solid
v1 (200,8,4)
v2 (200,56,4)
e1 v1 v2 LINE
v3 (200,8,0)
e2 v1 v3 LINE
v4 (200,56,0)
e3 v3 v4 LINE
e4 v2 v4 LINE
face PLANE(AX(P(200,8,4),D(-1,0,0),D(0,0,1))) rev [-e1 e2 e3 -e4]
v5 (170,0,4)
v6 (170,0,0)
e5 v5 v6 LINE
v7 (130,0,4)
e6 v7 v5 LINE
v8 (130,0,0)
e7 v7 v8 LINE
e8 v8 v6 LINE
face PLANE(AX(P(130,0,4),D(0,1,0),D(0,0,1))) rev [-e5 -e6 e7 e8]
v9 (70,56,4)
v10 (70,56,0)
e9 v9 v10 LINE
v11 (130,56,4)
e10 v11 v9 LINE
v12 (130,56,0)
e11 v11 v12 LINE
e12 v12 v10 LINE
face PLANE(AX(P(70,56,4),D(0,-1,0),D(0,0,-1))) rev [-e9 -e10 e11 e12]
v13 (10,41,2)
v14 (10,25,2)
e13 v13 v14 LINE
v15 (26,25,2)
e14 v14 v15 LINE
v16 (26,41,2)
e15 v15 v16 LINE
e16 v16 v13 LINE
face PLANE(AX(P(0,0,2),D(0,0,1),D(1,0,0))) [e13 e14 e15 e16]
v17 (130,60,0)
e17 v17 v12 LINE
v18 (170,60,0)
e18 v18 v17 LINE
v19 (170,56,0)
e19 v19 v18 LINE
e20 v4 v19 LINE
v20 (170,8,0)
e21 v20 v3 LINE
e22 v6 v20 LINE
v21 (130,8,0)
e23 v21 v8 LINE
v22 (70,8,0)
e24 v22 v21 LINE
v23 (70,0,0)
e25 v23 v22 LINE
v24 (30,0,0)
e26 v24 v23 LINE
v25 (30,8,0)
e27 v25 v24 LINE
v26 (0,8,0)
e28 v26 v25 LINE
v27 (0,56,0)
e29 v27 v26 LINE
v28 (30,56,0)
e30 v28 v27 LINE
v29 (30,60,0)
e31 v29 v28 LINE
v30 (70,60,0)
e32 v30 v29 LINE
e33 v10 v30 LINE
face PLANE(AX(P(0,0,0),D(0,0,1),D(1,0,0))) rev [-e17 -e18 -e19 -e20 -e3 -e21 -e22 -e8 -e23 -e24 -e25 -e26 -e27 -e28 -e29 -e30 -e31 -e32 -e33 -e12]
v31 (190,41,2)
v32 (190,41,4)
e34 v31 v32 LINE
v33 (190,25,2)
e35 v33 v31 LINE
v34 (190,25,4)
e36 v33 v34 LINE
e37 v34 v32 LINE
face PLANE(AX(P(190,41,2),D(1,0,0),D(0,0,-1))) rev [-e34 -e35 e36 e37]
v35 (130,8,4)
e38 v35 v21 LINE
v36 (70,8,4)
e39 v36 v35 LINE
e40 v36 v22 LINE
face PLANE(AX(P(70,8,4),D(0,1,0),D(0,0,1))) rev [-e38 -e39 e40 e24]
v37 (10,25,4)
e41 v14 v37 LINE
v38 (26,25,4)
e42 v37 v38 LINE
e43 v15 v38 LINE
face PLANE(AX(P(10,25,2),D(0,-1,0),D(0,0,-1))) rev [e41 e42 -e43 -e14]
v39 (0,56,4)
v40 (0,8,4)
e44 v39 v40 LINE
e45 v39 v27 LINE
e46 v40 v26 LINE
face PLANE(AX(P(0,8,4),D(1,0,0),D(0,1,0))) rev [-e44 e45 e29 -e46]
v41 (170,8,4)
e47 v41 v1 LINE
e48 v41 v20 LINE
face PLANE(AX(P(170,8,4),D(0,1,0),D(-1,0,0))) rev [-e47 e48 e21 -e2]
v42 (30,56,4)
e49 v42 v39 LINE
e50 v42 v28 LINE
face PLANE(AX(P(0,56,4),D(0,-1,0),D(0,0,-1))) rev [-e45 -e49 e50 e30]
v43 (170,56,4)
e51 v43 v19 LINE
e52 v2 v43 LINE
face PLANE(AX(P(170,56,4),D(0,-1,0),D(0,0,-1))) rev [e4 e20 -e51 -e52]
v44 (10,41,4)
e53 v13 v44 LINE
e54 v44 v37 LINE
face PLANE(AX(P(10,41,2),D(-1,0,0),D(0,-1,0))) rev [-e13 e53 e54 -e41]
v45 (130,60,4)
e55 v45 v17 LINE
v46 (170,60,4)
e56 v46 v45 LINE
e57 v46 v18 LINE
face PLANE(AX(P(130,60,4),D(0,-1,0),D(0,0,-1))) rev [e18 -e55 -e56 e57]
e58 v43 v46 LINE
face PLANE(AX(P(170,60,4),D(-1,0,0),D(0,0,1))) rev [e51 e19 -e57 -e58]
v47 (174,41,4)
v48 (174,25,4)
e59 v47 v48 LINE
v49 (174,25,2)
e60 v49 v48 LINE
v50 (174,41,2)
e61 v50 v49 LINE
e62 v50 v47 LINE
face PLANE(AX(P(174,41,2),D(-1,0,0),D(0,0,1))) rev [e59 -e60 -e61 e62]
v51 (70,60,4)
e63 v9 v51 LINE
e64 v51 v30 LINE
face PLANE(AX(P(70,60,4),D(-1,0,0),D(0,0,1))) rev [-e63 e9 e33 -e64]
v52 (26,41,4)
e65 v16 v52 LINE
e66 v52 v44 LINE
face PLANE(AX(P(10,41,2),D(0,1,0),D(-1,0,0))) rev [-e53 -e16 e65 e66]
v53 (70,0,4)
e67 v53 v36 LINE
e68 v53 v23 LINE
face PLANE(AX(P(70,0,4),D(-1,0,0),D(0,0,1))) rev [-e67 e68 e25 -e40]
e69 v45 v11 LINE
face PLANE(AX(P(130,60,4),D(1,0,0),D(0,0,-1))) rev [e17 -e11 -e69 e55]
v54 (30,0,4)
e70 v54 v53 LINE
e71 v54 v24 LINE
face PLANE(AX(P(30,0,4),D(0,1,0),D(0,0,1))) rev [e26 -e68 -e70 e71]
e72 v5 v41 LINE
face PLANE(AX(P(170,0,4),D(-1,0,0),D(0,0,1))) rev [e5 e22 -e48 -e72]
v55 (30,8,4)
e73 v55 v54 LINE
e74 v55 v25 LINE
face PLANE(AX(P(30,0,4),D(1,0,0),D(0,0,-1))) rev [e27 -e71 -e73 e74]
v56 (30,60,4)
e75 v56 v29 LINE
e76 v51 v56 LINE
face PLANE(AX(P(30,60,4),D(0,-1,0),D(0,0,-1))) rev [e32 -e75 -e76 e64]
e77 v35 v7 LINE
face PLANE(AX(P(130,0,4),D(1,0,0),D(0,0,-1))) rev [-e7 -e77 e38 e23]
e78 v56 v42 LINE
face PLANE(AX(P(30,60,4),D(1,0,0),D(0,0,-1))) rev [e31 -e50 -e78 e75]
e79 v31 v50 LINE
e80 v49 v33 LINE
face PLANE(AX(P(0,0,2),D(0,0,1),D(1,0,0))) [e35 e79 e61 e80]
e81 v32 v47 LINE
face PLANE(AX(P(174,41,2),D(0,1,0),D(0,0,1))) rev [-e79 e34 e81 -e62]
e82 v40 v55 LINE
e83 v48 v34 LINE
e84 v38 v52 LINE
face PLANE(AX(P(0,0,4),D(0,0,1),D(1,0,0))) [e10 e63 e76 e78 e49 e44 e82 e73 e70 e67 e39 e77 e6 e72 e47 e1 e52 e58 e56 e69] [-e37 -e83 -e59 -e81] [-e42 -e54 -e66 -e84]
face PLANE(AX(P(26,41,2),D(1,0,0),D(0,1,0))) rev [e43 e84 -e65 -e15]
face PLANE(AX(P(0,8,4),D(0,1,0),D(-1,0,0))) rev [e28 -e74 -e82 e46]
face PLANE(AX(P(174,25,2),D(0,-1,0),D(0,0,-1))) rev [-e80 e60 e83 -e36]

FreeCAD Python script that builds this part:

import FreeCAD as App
import Part
import Sketcher


def add_polygon(sketch, points):
    """Adds a closed chain of lines whose ends are joined by coincident constraints."""
    first, n = sketch.GeometryCount, len(points)
    for a, b in zip(points, points[1:] + points[:1]):
        sketch.addGeometry(Part.LineSegment(App.Vector(*a, 0), App.Vector(*b, 0)), False)
    for i in range(n):
        sketch.addConstraint(Sketcher.Constraint("Coincident", first + i, 2, first + (i + 1) % n, 1))

doc = App.newDocument("Part")
body = doc.addObject("PartDesign::Body", "Body")

# Sketch on XY plane
sketch1 = doc.addObject("Sketcher::SketchObject", "Sketch")
body.addObject(sketch1)
sketch1.AttachmentSupport = (doc.XY_Plane, [""])
sketch1.MapMode = "FlatFace"
add_polygon(sketch1, [(70, 60), (30, 60), (30, 56), (0, 56), (0, 8), (30, 8), (30, 0), (70, 0), (70, 8), (130, 8), (130, 0), (170, 0), (170, 8), (200, 8), (200, 56), (170, 56), (170, 60), (130, 60), (130, 56), (70, 56)])  # lines 0-19
sketch1.addConstraint([
    Sketcher.Constraint("Horizontal", 0),
    Sketcher.Constraint("Vertical", 1),
    Sketcher.Constraint("Horizontal", 2),
    Sketcher.Constraint("Vertical", 3),
    Sketcher.Constraint("Horizontal", 4),
    Sketcher.Constraint("Vertical", 5),
    Sketcher.Constraint("Horizontal", 6),
    Sketcher.Constraint("Vertical", 7),
    Sketcher.Constraint("Horizontal", 8),
    Sketcher.Constraint("Vertical", 9),
    Sketcher.Constraint("Horizontal", 10),
    Sketcher.Constraint("Vertical", 11),
    Sketcher.Constraint("Horizontal", 12),
    Sketcher.Constraint("Vertical", 13),
    Sketcher.Constraint("Horizontal", 14),
    Sketcher.Constraint("Vertical", 15),
    Sketcher.Constraint("Horizontal", 16),
    Sketcher.Constraint("Vertical", 17),
    Sketcher.Constraint("Horizontal", 18),
    Sketcher.Constraint("Vertical", 19),
    Sketcher.Constraint("PointOnObject", 2, 2, -2),
    Sketcher.Constraint("PointOnObject", 5, 2, -1),
    Sketcher.Constraint("PointOnObject", 9, 2, -1),
    Sketcher.Constraint("Horizontal", 4, 2, 7, 2),
    Sketcher.Constraint("Horizontal", 8, 2, 11, 2),
    Sketcher.Constraint("Horizontal", 2, 2, 13, 2),
    Sketcher.Constraint("Horizontal", 0, 2, 15, 2),
    Sketcher.Constraint("Horizontal", 14, 2, 17, 2),
    Sketcher.Constraint("Vertical", 1, 2, 4, 2),
    Sketcher.Constraint("Vertical", 11, 2, 14, 2),
    Sketcher.Constraint("Vertical", 9, 2, 16, 2),
    Sketcher.Constraint("Vertical", 7, 2, 18, 2),
    Sketcher.Constraint("Equal", 6, 10),
    Sketcher.Constraint("Equal", 4, 12),
    Sketcher.Constraint("DistanceX", 0, 2, 0, 1, 40.0),
    Sketcher.Constraint("DistanceX", 2, 2, 2, 1, 30.0),
    Sketcher.Constraint("DistanceX", 8, 1, 8, 2, 60.0),
    Sketcher.Constraint("DistanceY", 1, 2, 1, 1, 4.0),
    Sketcher.Constraint("DistanceY", 3, 2, 3, 1, 48.0),
    Sketcher.Constraint("DistanceY", 5, 2, 5, 1, 8.0),
])
pad1 = doc.addObject("PartDesign::Pad", "Pad")
body.addObject(pad1)
pad1.Profile = sketch1
pad1.Length = 4

# Sketch on XY plane
sketch2 = doc.addObject("Sketcher::SketchObject", "Sketch001")
body.addObject(sketch2)
sketch2.AttachmentSupport = (doc.XY_Plane, [""])
sketch2.MapMode = "FlatFace"
sketch2.AttachmentOffset = App.Placement(App.Vector(0, 0, 4), App.Rotation())
add_polygon(sketch2, [(10, 41), (10, 25), (26, 25), (26, 41)])  # lines 0-3
add_polygon(sketch2, [(174, 41), (174, 25), (190, 25), (190, 41)])  # lines 4-7
sketch2.addConstraint([
    Sketcher.Constraint("Vertical", 0),
    Sketcher.Constraint("Horizontal", 1),
    Sketcher.Constraint("Vertical", 2),
    Sketcher.Constraint("Horizontal", 3),
    Sketcher.Constraint("Vertical", 4),
    Sketcher.Constraint("Horizontal", 5),
    Sketcher.Constraint("Vertical", 6),
    Sketcher.Constraint("Horizontal", 7),
    Sketcher.Constraint("Horizontal", 1, 2, 4, 2),
    Sketcher.Constraint("Horizontal", 3, 2, 6, 2),
    Sketcher.Constraint("Equal", 3, 5),
    Sketcher.Constraint("Equal", 7, 0),
    Sketcher.Constraint("DistanceX", 1, 1, 1, 2, 16.0),
    Sketcher.Constraint("DistanceX", -1, 1, 0, 2, 10.0),
    Sketcher.Constraint("DistanceY", -1, 1, 0, 2, 25.0),
    Sketcher.Constraint("DistanceX", -1, 1, 4, 2, 174.0),
])
pocket1 = doc.addObject("PartDesign::Pocket", "Pocket")
body.addObject(pocket1)
pocket1.Profile = sketch2
pocket1.Length = 2

doc.recompute()
